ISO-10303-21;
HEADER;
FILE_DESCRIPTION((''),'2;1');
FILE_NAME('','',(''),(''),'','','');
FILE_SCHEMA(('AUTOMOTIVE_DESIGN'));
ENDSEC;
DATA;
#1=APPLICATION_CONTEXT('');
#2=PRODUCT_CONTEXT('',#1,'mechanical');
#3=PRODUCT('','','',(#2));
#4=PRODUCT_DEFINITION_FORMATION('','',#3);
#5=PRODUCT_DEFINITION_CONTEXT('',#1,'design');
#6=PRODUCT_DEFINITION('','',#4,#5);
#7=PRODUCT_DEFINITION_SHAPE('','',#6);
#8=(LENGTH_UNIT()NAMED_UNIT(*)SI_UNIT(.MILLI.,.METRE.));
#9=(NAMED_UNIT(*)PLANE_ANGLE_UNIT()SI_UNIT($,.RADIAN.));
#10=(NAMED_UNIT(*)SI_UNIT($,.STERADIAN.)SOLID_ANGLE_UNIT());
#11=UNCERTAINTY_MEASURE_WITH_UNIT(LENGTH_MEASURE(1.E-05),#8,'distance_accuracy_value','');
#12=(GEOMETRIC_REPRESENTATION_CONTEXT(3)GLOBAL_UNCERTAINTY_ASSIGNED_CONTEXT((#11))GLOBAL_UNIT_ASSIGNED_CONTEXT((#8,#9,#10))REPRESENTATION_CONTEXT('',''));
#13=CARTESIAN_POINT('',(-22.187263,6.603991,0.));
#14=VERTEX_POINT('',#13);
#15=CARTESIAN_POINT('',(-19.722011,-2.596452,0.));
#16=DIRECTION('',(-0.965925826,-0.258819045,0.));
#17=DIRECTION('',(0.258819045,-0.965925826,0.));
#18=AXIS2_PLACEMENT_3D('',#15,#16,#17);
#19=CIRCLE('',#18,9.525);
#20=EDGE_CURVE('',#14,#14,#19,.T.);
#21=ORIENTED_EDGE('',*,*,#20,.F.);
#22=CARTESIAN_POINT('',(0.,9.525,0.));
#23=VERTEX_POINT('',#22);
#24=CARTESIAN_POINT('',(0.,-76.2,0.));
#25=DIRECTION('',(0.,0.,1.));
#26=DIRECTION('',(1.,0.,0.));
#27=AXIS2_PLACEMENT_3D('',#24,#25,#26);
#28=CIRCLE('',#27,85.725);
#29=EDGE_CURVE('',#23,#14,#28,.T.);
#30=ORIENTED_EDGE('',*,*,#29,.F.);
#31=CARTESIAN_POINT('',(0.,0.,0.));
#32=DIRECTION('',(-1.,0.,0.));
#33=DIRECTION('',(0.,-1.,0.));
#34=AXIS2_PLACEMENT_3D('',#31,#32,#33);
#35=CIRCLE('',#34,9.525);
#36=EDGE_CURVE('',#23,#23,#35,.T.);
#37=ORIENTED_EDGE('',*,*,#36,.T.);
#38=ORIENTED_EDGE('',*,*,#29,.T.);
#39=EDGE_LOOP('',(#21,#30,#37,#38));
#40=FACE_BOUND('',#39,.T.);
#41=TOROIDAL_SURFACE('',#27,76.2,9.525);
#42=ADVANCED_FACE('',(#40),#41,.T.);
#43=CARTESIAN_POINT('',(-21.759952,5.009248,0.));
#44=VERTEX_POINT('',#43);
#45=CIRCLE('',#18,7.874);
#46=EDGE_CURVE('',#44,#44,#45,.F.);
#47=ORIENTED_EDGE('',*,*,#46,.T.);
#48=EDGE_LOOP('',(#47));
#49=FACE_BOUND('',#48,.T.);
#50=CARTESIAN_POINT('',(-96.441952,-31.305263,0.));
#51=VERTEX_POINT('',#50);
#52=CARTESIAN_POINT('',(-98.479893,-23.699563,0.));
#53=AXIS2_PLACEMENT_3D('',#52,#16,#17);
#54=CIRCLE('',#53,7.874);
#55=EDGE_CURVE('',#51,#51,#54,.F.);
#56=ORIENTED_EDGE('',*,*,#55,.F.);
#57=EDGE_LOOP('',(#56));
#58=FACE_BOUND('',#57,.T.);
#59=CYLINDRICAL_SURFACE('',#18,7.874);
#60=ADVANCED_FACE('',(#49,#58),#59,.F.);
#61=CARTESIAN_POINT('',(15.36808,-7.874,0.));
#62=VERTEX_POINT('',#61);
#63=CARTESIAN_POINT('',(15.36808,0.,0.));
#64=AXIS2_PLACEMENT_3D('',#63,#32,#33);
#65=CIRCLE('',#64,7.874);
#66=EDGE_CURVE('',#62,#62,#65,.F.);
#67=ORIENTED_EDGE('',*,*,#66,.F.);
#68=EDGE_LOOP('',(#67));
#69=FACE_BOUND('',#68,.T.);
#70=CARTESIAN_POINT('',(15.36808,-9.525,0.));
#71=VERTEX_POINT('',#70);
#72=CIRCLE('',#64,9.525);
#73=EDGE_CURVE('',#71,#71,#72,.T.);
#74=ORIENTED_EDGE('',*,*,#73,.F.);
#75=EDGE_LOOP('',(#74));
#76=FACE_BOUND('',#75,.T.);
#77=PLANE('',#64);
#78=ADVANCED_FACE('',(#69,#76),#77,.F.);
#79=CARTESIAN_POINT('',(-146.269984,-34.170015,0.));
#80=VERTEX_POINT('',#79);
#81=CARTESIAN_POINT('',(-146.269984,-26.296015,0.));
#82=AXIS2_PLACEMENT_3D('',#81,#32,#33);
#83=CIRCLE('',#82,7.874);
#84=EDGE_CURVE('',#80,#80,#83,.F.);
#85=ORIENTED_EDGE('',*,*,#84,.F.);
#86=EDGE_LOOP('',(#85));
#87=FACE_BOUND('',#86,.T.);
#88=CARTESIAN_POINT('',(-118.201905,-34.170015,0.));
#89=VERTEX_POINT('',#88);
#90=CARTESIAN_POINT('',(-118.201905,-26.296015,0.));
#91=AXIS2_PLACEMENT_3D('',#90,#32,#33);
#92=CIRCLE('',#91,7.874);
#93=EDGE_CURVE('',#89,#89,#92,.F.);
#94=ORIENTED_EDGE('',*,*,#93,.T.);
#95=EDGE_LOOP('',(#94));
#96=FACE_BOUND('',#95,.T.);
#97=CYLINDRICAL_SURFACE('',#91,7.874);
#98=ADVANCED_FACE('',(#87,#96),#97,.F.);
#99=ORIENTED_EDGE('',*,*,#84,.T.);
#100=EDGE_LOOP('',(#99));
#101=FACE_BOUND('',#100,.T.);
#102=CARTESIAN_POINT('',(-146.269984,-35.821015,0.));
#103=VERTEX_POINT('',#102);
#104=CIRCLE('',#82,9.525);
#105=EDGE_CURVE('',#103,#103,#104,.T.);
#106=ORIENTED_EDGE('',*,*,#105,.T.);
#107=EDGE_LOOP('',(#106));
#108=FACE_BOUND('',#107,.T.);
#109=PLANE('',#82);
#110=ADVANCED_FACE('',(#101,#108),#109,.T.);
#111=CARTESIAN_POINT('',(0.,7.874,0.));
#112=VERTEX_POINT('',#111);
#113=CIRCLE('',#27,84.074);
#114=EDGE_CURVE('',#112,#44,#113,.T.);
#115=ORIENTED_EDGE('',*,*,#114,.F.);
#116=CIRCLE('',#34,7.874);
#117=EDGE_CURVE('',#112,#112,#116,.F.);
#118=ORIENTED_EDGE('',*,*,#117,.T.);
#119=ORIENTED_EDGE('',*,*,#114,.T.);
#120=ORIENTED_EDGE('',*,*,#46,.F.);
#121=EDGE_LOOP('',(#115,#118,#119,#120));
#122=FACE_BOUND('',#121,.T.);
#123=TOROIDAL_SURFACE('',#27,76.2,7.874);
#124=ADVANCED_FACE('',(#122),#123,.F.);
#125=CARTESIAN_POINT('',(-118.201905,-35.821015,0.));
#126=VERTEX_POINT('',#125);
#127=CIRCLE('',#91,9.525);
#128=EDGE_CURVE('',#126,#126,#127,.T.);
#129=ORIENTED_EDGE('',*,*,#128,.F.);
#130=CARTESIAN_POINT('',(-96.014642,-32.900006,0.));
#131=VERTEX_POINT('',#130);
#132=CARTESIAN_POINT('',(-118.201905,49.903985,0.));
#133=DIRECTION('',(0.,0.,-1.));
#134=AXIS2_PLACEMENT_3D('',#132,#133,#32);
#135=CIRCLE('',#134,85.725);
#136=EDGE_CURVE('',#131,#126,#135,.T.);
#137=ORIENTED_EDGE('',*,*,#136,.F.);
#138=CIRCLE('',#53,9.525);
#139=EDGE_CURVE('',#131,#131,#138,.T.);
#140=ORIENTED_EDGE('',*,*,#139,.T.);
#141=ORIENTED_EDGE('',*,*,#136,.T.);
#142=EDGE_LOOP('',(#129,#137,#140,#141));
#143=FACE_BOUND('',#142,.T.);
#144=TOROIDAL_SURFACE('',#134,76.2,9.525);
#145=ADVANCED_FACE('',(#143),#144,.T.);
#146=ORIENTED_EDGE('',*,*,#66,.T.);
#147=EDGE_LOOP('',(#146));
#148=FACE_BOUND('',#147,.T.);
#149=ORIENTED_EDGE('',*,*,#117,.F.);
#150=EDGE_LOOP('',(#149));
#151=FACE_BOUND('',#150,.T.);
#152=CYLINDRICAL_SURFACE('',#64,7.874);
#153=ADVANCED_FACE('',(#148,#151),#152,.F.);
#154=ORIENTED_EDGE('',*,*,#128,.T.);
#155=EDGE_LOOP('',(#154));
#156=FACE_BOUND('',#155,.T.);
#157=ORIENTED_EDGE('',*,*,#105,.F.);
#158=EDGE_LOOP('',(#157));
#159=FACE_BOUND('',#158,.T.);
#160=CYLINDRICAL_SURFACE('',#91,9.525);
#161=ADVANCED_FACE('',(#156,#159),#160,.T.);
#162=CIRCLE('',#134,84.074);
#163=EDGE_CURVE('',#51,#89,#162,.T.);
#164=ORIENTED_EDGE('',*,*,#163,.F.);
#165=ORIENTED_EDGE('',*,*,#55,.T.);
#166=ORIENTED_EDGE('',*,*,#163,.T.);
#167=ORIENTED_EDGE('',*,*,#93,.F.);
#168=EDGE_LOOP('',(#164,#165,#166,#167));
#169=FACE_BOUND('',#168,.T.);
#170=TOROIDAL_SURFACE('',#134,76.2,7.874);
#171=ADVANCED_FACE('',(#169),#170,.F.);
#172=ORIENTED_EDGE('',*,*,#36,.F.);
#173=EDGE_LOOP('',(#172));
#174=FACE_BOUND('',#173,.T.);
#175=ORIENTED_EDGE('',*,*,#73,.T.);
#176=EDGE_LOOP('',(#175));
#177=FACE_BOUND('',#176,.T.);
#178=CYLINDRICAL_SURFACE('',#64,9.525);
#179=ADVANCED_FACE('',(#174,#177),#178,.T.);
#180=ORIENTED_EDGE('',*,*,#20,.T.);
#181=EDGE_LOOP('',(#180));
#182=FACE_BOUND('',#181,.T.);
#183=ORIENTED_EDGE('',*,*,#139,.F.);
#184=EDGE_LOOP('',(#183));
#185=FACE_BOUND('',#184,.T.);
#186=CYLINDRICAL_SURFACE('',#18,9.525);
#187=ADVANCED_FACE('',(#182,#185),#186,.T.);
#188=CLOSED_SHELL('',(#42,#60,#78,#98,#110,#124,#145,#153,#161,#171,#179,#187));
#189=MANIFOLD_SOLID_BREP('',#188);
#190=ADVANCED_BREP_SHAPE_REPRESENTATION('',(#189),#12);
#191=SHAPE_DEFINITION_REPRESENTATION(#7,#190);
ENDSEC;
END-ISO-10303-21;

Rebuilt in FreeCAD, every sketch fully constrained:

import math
import FreeCAD as App
import Part
import Sketcher
from FreeCAD import Vector
Q = App.Units.Quantity

doc = App.newDocument("Part")
body = doc.addObject("PartDesign::Body", "Body")

sketch1 = body.newObject("Sketcher::SketchObject", "Sketch")
sketch1.AttachmentSupport = (doc.getObject("YZ_Plane"), [""])
sketch1.MapMode = "FlatFace"
sketch1.AttachmentOffset = App.Placement(Vector(0, 0, 15.36808), App.Rotation())
sketch1.addGeometry([
    Part.Circle(Vector(0, 0, 0), Vector(0, 0, 1), 9.525),
    Part.Circle(Vector(0, 0, 0), Vector(0, 0, 1), 7.874),
], False)
sketch1.addConstraint([
    Sketcher.Constraint("Coincident", 0, 3, -1, 1),
    Sketcher.Constraint("Coincident", 1, 3, -1, 1),
    Sketcher.Constraint("Diameter", 0, Q("0.75 in")),
    Sketcher.Constraint("Diameter", 1, Q("0.62 in")),
])

sketch2 = body.newObject("Sketcher::SketchObject", "Sketch001")
sketch2.AttachmentSupport = (doc.getObject("XY_Plane"), [""])
sketch2.MapMode = "FlatFace"
sketch2.addGeometry([
    Part.LineSegment(Vector(15.36808, 0, 0), Vector(0, 0, 0)),
    Part.ArcOfCircle(Part.Circle(Vector(0, -76.2, 0), Vector(0, 0, 1), 76.2), math.radians(90), math.radians(105)),
    Part.LineSegment(Vector(-19.722011, -2.596452, 0), Vector(-98.479893, -23.699563, 0)),
    Part.ArcOfCircle(Part.Circle(Vector(-118.201905, 49.903985, 0), Vector(0, 0, 1), 76.2), math.radians(-90), math.radians(-75)),
    Part.LineSegment(Vector(-118.201905, -26.296015, 0), Vector(-146.269984, -26.296015, 0)),
], False)
sketch2.addConstraint([
    Sketcher.Constraint("Tangent", 0, 2, 1, 1),
    Sketcher.Constraint("Tangent", 1, 2, 2, 1),
    Sketcher.Constraint("Tangent", 2, 2, 3, 2),
    Sketcher.Constraint("Tangent", 3, 1, 4, 1),
    Sketcher.Constraint("Horizontal", 0),
    Sketcher.Constraint("Horizontal", 4),
    Sketcher.Constraint("Coincident", 0, 2, -1, 1),
    Sketcher.Constraint("Equal", 1, 3),
    Sketcher.Constraint("Radius", 1, Q("3 in")),
    Sketcher.Constraint("Angle", 2, Q("-165 deg")),
    Sketcher.Constraint("DistanceX", 0, 2, 0, 1, 15.36808),
    Sketcher.Constraint("DistanceX", 4, 2, 4, 1, 28.06808),
    Sketcher.Constraint("Distance", 2, 81.536159),
])
doc.recompute()

additivepipe = body.newObject("PartDesign::AdditivePipe", "AdditivePipe")
additivepipe.Profile = sketch1
additivepipe.Spine = (sketch2, ["Edge1", "Edge2", "Edge3", "Edge4", "Edge5"])

doc.recompute()
